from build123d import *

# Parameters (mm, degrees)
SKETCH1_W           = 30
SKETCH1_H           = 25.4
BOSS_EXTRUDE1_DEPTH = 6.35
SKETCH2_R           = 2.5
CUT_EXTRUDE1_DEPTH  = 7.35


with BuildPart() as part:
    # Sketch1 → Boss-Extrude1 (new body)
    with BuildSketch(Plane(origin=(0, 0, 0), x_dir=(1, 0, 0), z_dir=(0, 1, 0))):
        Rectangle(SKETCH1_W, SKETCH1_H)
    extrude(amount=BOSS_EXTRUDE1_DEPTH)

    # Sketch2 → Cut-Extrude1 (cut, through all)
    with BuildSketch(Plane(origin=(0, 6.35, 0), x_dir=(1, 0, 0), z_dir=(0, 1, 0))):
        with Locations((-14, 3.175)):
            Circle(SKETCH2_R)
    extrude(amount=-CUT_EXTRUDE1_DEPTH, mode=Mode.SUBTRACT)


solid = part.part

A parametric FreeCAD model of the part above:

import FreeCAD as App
import Part
import Sketcher
from FreeCAD import Vector
Q = App.Units.Quantity

doc = App.newDocument("Part")
params = doc.addObject("Spreadsheet::Sheet", "Params")
for row, (alias, value) in enumerate([
    ("sketch1_width", "30 mm"),
    ("sketch1_height", "25.4 mm"),
    ("pad1_length", "6.35 mm"),
    ("sketch2_diameter", "5 mm"),
], start=1):
    params.set(f"A{row}", alias)
    params.set(f"B{row}", "=" + value)
    params.setAlias(f"B{row}", alias)

body = doc.addObject("PartDesign::Body", "Body")

sketch1 = body.newObject("Sketcher::SketchObject", "Sketch")
sketch1.AttachmentSupport = (doc.getObject("XZ_Plane"), [""])
sketch1.MapMode = "FlatFace"
sketch1.addGeometry(Part.LineSegment(Vector(-15, -12.7, 0), Vector(-15, 12.7, 0)), False)
sketch1.addGeometry(Part.LineSegment(Vector(-15, 12.7, 0), Vector(15, 12.7, 0)), False)
sketch1.addGeometry(Part.LineSegment(Vector(15, 12.7, 0), Vector(15, -12.7, 0)), False)
sketch1.addGeometry(Part.LineSegment(Vector(15, -12.7, 0), Vector(-15, -12.7, 0)), False)
sketch1.addConstraint(Sketcher.Constraint("Coincident", 0, 2, 1, 1))
sketch1.addConstraint(Sketcher.Constraint("Coincident", 1, 2, 2, 1))
sketch1.addConstraint(Sketcher.Constraint("Coincident", 2, 2, 3, 1))
sketch1.addConstraint(Sketcher.Constraint("Coincident", 3, 2, 0, 1))
sketch1.addConstraint(Sketcher.Constraint("Vertical", 0))
sketch1.addConstraint(Sketcher.Constraint("Horizontal", 1))
sketch1.addConstraint(Sketcher.Constraint("Vertical", 2))
sketch1.addConstraint(Sketcher.Constraint("Horizontal", 3))
sketch1.addConstraint(Sketcher.Constraint("Symmetric", 0, 2, 2, 2, -1, 1))
sketch1.addConstraint(Sketcher.Constraint("DistanceX", 1, 1, 1, 2, Q("30 mm")))
sketch1.addConstraint(Sketcher.Constraint("DistanceY", 0, 1, 0, 2, Q("25.4 mm")))
sketch1.setExpression("Constraints[9]", "Params.sketch1_width")
sketch1.setExpression("Constraints[10]", "Params.sketch1_height")
pad1 = body.newObject("PartDesign::Pad", "Pad")
pad1.Profile = sketch1
pad1.setExpression("Length", "Params.pad1_length")
pad1.Reversed = True

sketch2 = body.newObject("Sketcher::SketchObject", "Sketch001")
sketch2.AttachmentSupport = (doc.getObject("XZ_Plane"), [""])
sketch2.MapMode = "FlatFace"
sketch2.AttachmentOffset = App.Placement(Vector(0, 0, -6.35), App.Rotation())
sketch2.addGeometry(Part.Circle(Vector(-14, -3.175, 0), Vector(0, 0, 1), 2.5), False)
sketch2.addConstraint(Sketcher.Constraint("Diameter", 0, Q("5 mm")))
sketch2.addConstraint(Sketcher.Constraint("DistanceX", 0, 3, -1, 1, Q("14 mm")))
sketch2.addConstraint(Sketcher.Constraint("DistanceY", 0, 3, -1, 1, Q("3.175 mm")))
sketch2.setExpression("Constraints[0]", "Params.sketch2_diameter")
pocket1 = body.newObject("PartDesign::Pocket", "Pocket")
pocket1.Profile = sketch2
pocket1.Type = "ThroughAll"
pocket1.Reversed = True

doc.recompute()
